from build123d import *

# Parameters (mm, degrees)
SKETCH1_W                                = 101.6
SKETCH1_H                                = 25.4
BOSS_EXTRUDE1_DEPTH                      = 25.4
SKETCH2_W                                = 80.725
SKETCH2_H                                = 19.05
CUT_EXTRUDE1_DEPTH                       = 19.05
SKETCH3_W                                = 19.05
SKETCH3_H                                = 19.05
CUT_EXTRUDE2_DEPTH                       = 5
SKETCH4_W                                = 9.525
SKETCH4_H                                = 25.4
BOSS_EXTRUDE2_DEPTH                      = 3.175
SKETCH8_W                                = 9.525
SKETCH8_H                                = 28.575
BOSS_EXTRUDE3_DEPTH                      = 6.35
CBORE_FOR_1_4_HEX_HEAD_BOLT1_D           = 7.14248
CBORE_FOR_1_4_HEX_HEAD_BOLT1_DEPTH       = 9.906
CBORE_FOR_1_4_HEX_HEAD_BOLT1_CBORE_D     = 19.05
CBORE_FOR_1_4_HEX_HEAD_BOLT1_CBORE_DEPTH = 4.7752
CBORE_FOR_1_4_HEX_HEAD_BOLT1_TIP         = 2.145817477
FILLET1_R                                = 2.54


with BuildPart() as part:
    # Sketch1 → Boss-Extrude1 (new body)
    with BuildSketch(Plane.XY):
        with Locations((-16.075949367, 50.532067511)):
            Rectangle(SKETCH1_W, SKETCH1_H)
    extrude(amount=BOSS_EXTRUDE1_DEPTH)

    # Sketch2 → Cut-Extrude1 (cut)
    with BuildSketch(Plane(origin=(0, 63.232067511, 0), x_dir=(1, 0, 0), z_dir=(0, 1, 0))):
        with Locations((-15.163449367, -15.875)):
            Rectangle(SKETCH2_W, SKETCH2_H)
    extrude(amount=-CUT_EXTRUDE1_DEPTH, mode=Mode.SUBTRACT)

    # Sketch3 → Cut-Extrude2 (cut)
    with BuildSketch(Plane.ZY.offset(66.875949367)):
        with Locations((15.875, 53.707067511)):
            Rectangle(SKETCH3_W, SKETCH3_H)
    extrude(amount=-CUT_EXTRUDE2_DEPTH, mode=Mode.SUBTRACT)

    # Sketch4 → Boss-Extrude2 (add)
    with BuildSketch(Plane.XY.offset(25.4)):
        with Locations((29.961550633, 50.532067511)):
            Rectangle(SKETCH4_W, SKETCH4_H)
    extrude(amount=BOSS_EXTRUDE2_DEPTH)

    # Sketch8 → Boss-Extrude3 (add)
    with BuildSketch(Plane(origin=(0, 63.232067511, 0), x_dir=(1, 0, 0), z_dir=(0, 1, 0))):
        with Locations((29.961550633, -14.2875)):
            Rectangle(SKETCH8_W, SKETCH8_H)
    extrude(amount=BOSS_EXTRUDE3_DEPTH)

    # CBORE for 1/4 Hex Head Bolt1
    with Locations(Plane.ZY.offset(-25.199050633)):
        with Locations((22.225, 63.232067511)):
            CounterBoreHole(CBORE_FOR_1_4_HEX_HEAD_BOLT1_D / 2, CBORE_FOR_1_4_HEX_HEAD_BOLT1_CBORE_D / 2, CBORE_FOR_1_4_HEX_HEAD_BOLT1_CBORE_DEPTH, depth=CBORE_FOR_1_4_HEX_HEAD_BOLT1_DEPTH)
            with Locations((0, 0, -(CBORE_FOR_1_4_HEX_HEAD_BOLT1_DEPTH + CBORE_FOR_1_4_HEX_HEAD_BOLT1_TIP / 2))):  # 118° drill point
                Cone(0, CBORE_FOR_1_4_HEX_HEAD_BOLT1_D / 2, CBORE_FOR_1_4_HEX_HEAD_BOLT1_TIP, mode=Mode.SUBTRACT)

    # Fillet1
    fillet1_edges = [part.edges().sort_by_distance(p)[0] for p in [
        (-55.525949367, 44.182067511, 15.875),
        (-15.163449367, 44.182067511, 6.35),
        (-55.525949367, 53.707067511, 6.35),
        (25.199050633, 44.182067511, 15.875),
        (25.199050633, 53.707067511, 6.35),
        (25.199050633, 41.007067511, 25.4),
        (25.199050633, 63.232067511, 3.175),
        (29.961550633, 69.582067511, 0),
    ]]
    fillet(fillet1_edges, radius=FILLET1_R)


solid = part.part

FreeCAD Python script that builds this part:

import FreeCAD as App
import Part
import Sketcher
from FreeCAD import Vector
Q = App.Units.Quantity


def edges_at(feature, points):
    """Names of the edges that pass closest to the given points."""
    edges = feature.Shape.Edges
    near = lambda p: min(range(len(edges)), key=lambda i: edges[i].distToShape(Part.Vertex(*p))[0])
    return sorted({f"Edge{near(p) + 1}" for p in points})


def add_polygon(sketch, points):
    """Adds a closed chain of lines whose ends are joined by coincident constraints."""
    first, n = sketch.GeometryCount, len(points)
    for a, b in zip(points, points[1:] + points[:1]):
        sketch.addGeometry(Part.LineSegment(App.Vector(*a, 0), App.Vector(*b, 0)), False)
    for i in range(n):
        sketch.addConstraint(Sketcher.Constraint("Coincident", first + i, 2, first + (i + 1) % n, 1))

doc = App.newDocument("Part")
params = doc.addObject("Spreadsheet::Sheet", "Params")
for row, (alias, value) in enumerate([
    ("sketch1_width", "4 in"),
    ("sketch1_height", "1 in"),
    ("pad1_length", "1 in"),
    ("sketch2_height", "0.75 in"),
    ("pocket1_length", "0.75 in"),
    ("sketch3_width", "0.75 in"),
    ("pocket2_length", "5 mm"),
    ("sketch4_height", "1 in"),
    ("sketch4_width", "0.375 in"),
    ("pad2_length", "0.125 in"),
    ("sketch5_width", "0.375 in"),
    ("sketch5_height", "1.125 in"),
    ("pad3_length", "0.25 in"),
    ("hole_diameter", "0.2812 in"),
    ("hole_depth", "0.39 in"),
    ("hole_cbore_diameter", "0.75 in"),
    ("hole_cbore_depth", "0.188 in"),
    ("fillet_radius", "0.1 in"),
], start=1):
    params.set(f"A{row}", alias)
    params.set(f"B{row}", "=" + value)
    params.setAlias(f"B{row}", alias)

body = doc.addObject("PartDesign::Body", "Body")

# Sketch on XY plane
sketch1 = doc.addObject("Sketcher::SketchObject", "Sketch")
body.addObject(sketch1)
sketch1.AttachmentSupport = (doc.XY_Plane, [""])
sketch1.MapMode = "FlatFace"
add_polygon(sketch1, [(-67, 63), (-67, 38), (35, 38), (35, 63)])  # lines 0-3
sketch1.addConstraint([
    Sketcher.Constraint("Vertical", 0),
    Sketcher.Constraint("Horizontal", 1),
    Sketcher.Constraint("Vertical", 2),
    Sketcher.Constraint("Horizontal", 3),
    Sketcher.Constraint("DistanceX", 1, 1, 1, 2, Q("4 in")),
    Sketcher.Constraint("DistanceY", 0, 2, 0, 1, Q("1 in")),
    Sketcher.Constraint("DistanceX", 0, 2, -1, 1, 66.875949),
    Sketcher.Constraint("DistanceY", -1, 1, 0, 2, 37.832068),
])
sketch1.setExpression("Constraints[8]", "Params.sketch1_width")
sketch1.setExpression("Constraints[9]", "Params.sketch1_height")
pad1 = doc.addObject("PartDesign::Pad", "Pad")
body.addObject(pad1)
pad1.Profile = sketch1
pad1.setExpression("Length", "Params.pad1_length")

# Sketch on XZ plane
sketch2 = doc.addObject("Sketcher::SketchObject", "Sketch001")
body.addObject(sketch2)
sketch2.AttachmentSupport = (doc.XZ_Plane, [""])
sketch2.MapMode = "FlatFace"
sketch2.AttachmentOffset = App.Placement(Vector(0, 0, -63.232068), App.Rotation())
add_polygon(sketch2, [(-56, 6), (-56, 25), (25, 25), (25, 6)])  # lines 0-3
sketch2.addConstraint([
    Sketcher.Constraint("Vertical", 0),
    Sketcher.Constraint("Horizontal", 1),
    Sketcher.Constraint("Vertical", 2),
    Sketcher.Constraint("Horizontal", 3),
    Sketcher.Constraint("DistanceY", -1, 1, 0, 2, Q("1 in")),
    Sketcher.Constraint("DistanceY", 0, 1, 0, 2, Q("0.75 in")),
    Sketcher.Constraint("DistanceX", 1, 1, 1, 2, 80.725),
    Sketcher.Constraint("DistanceX", 0, 2, -1, 1, 55.525949),
])
sketch2.setExpression("Constraints[9]", "Params.sketch2_height")
pocket1 = doc.addObject("PartDesign::Pocket", "Pocket")
body.addObject(pocket1)
pocket1.Profile = sketch2
pocket1.setExpression("Length", "Params.pocket1_length")
pocket1.Reversed = True

# Sketch on YZ plane
sketch3 = doc.addObject("Sketcher::SketchObject", "Sketch002")
body.addObject(sketch3)
sketch3.AttachmentSupport = (doc.YZ_Plane, [""])
sketch3.MapMode = "FlatFace"
sketch3.AttachmentOffset = App.Placement(Vector(0, 0, -66.875949), App.Rotation())
add_polygon(sketch3, [(63, 6), (44, 6), (44, 25), (63, 25)])  # lines 0-3
sketch3.addConstraint([
    Sketcher.Constraint("Horizontal", 0),
    Sketcher.Constraint("Vertical", 1),
    Sketcher.Constraint("Horizontal", 2),
    Sketcher.Constraint("Vertical", 3),
    Sketcher.Constraint("Equal", 2, 1),
    Sketcher.Constraint("DistanceY", -1, 1, 1, 2, Q("1 in")),
    Sketcher.Constraint("DistanceX", 0, 2, 0, 1, Q("0.75 in")),
    Sketcher.Constraint("DistanceX", -1, 1, 0, 2, 44.182068),
])
sketch3.setExpression("Constraints[10]", "Params.sketch3_width")
pocket2 = doc.addObject("PartDesign::Pocket", "Pocket001")
body.addObject(pocket2)
pocket2.Profile = sketch3
pocket2.setExpression("Length", "Params.pocket2_length")
pocket2.Reversed = True

# Sketch on XY plane
sketch4 = doc.addObject("Sketcher::SketchObject", "Sketch003")
body.addObject(sketch4)
sketch4.AttachmentSupport = (doc.XY_Plane, [""])
sketch4.MapMode = "FlatFace"
sketch4.AttachmentOffset = App.Placement(Vector(0, 0, 1 * 25.4), App.Rotation())
add_polygon(sketch4, [(25, 63), (25, 38), (35, 38), (35, 63)])  # lines 0-3
sketch4.addConstraint([
    Sketcher.Constraint("Vertical", 0),
    Sketcher.Constraint("Horizontal", 1),
    Sketcher.Constraint("Vertical", 2),
    Sketcher.Constraint("Horizontal", 3),
    Sketcher.Constraint("DistanceY", 0, 2, 0, 1, Q("1 in")),
    Sketcher.Constraint("DistanceX", 1, 1, 1, 2, Q("0.375 in")),
    Sketcher.Constraint("DistanceX", -1, 1, 0, 2, 25.199051),
    Sketcher.Constraint("DistanceY", -1, 1, 0, 2, 37.832068),
])
sketch4.setExpression("Constraints[8]", "Params.sketch4_height")
sketch4.setExpression("Constraints[9]", "Params.sketch4_width")
pad2 = doc.addObject("PartDesign::Pad", "Pad001")
body.addObject(pad2)
pad2.Profile = sketch4
pad2.setExpression("Length", "Params.pad2_length")

# Sketch on XZ plane
sketch5 = doc.addObject("Sketcher::SketchObject", "Sketch004")
body.addObject(sketch5)
sketch5.AttachmentSupport = (doc.XZ_Plane, [""])
sketch5.MapMode = "FlatFace"
sketch5.AttachmentOffset = App.Placement(Vector(0, 0, -63.232068), App.Rotation())
add_polygon(sketch5, [(25, 0), (25, 29), (35, 29), (35, 0)])  # lines 0-3
sketch5.addConstraint([
    Sketcher.Constraint("Vertical", 0),
    Sketcher.Constraint("Horizontal", 1),
    Sketcher.Constraint("Vertical", 2),
    Sketcher.Constraint("Horizontal", 3),
    Sketcher.Constraint("PointOnObject", 2, 2, -1),
    Sketcher.Constraint("DistanceX", 1, 1, 1, 2, Q("0.375 in")),
    Sketcher.Constraint("DistanceY", 0, 1, 0, 2, Q("1.125 in")),
    Sketcher.Constraint("DistanceX", -1, 1, 0, 2, 25.199051),
])
sketch5.setExpression("Constraints[9]", "Params.sketch5_width")
sketch5.setExpression("Constraints[10]", "Params.sketch5_height")
pad3 = doc.addObject("PartDesign::Pad", "Pad002")
body.addObject(pad3)
pad3.Profile = sketch5
pad3.setExpression("Length", "Params.pad3_length")
pad3.Reversed = True

# Sketch on YZ plane
sketch6 = doc.addObject("Sketcher::SketchObject", "Sketch005")
body.addObject(sketch6)
sketch6.AttachmentSupport = (doc.YZ_Plane, [""])
sketch6.MapMode = "FlatFace"
sketch6.AttachmentOffset = App.Placement(Vector(0, 0, 25.199051), App.Rotation())
sketch6.addGeometry(Part.Circle(Vector(63.2, 22.2, 0), Vector(0, 0, 1), 3.6), False)
sketch6.addConstraint([
    Sketcher.Constraint("Diameter", 0, Q("0.2812 in")),
    Sketcher.Constraint("DistanceY", -1, 1, 0, 3, Q("0.875 in")),
    Sketcher.Constraint("DistanceX", -1, 1, 0, 3, 63.232068),
])
doc.recompute()
hole = doc.addObject("PartDesign::Hole", "Hole")
body.addObject(hole)
hole.Profile = sketch6
hole.ThreadType = "None"
hole.setExpression("Diameter", "Params.hole_diameter")
hole.DepthType = "Dimension"
hole.setExpression("Depth", "Params.hole_depth")
hole.DrillPoint = "Angled"
hole.DrillPointAngle = 118
hole.HoleCutType = "Counterbore"
hole.setExpression("HoleCutDiameter", "Params.hole_cbore_diameter")
hole.setExpression("HoleCutDepth", "Params.hole_cbore_depth")
hole.Reversed = True
doc.recompute()

fillet = doc.addObject("PartDesign::Fillet", "Fillet")
body.addObject(fillet)
fillet.Base = (hole, edges_at(hole, [
    (-55.526, 44.182, 15.875),
    (-15.163, 44.182, 6.35),
    (-55.526, 53.707, 6.35),
    (25.199, 44.182, 15.875),
    (25.199, 53.707, 6.35),
    (25.199, 41.007, 25.4),
    (25.199, 63.232, 3.175),
    (29.962, 69.582, 0),
]))
fillet.setExpression("Radius", "Params.fillet_radius")

doc.recompute()
